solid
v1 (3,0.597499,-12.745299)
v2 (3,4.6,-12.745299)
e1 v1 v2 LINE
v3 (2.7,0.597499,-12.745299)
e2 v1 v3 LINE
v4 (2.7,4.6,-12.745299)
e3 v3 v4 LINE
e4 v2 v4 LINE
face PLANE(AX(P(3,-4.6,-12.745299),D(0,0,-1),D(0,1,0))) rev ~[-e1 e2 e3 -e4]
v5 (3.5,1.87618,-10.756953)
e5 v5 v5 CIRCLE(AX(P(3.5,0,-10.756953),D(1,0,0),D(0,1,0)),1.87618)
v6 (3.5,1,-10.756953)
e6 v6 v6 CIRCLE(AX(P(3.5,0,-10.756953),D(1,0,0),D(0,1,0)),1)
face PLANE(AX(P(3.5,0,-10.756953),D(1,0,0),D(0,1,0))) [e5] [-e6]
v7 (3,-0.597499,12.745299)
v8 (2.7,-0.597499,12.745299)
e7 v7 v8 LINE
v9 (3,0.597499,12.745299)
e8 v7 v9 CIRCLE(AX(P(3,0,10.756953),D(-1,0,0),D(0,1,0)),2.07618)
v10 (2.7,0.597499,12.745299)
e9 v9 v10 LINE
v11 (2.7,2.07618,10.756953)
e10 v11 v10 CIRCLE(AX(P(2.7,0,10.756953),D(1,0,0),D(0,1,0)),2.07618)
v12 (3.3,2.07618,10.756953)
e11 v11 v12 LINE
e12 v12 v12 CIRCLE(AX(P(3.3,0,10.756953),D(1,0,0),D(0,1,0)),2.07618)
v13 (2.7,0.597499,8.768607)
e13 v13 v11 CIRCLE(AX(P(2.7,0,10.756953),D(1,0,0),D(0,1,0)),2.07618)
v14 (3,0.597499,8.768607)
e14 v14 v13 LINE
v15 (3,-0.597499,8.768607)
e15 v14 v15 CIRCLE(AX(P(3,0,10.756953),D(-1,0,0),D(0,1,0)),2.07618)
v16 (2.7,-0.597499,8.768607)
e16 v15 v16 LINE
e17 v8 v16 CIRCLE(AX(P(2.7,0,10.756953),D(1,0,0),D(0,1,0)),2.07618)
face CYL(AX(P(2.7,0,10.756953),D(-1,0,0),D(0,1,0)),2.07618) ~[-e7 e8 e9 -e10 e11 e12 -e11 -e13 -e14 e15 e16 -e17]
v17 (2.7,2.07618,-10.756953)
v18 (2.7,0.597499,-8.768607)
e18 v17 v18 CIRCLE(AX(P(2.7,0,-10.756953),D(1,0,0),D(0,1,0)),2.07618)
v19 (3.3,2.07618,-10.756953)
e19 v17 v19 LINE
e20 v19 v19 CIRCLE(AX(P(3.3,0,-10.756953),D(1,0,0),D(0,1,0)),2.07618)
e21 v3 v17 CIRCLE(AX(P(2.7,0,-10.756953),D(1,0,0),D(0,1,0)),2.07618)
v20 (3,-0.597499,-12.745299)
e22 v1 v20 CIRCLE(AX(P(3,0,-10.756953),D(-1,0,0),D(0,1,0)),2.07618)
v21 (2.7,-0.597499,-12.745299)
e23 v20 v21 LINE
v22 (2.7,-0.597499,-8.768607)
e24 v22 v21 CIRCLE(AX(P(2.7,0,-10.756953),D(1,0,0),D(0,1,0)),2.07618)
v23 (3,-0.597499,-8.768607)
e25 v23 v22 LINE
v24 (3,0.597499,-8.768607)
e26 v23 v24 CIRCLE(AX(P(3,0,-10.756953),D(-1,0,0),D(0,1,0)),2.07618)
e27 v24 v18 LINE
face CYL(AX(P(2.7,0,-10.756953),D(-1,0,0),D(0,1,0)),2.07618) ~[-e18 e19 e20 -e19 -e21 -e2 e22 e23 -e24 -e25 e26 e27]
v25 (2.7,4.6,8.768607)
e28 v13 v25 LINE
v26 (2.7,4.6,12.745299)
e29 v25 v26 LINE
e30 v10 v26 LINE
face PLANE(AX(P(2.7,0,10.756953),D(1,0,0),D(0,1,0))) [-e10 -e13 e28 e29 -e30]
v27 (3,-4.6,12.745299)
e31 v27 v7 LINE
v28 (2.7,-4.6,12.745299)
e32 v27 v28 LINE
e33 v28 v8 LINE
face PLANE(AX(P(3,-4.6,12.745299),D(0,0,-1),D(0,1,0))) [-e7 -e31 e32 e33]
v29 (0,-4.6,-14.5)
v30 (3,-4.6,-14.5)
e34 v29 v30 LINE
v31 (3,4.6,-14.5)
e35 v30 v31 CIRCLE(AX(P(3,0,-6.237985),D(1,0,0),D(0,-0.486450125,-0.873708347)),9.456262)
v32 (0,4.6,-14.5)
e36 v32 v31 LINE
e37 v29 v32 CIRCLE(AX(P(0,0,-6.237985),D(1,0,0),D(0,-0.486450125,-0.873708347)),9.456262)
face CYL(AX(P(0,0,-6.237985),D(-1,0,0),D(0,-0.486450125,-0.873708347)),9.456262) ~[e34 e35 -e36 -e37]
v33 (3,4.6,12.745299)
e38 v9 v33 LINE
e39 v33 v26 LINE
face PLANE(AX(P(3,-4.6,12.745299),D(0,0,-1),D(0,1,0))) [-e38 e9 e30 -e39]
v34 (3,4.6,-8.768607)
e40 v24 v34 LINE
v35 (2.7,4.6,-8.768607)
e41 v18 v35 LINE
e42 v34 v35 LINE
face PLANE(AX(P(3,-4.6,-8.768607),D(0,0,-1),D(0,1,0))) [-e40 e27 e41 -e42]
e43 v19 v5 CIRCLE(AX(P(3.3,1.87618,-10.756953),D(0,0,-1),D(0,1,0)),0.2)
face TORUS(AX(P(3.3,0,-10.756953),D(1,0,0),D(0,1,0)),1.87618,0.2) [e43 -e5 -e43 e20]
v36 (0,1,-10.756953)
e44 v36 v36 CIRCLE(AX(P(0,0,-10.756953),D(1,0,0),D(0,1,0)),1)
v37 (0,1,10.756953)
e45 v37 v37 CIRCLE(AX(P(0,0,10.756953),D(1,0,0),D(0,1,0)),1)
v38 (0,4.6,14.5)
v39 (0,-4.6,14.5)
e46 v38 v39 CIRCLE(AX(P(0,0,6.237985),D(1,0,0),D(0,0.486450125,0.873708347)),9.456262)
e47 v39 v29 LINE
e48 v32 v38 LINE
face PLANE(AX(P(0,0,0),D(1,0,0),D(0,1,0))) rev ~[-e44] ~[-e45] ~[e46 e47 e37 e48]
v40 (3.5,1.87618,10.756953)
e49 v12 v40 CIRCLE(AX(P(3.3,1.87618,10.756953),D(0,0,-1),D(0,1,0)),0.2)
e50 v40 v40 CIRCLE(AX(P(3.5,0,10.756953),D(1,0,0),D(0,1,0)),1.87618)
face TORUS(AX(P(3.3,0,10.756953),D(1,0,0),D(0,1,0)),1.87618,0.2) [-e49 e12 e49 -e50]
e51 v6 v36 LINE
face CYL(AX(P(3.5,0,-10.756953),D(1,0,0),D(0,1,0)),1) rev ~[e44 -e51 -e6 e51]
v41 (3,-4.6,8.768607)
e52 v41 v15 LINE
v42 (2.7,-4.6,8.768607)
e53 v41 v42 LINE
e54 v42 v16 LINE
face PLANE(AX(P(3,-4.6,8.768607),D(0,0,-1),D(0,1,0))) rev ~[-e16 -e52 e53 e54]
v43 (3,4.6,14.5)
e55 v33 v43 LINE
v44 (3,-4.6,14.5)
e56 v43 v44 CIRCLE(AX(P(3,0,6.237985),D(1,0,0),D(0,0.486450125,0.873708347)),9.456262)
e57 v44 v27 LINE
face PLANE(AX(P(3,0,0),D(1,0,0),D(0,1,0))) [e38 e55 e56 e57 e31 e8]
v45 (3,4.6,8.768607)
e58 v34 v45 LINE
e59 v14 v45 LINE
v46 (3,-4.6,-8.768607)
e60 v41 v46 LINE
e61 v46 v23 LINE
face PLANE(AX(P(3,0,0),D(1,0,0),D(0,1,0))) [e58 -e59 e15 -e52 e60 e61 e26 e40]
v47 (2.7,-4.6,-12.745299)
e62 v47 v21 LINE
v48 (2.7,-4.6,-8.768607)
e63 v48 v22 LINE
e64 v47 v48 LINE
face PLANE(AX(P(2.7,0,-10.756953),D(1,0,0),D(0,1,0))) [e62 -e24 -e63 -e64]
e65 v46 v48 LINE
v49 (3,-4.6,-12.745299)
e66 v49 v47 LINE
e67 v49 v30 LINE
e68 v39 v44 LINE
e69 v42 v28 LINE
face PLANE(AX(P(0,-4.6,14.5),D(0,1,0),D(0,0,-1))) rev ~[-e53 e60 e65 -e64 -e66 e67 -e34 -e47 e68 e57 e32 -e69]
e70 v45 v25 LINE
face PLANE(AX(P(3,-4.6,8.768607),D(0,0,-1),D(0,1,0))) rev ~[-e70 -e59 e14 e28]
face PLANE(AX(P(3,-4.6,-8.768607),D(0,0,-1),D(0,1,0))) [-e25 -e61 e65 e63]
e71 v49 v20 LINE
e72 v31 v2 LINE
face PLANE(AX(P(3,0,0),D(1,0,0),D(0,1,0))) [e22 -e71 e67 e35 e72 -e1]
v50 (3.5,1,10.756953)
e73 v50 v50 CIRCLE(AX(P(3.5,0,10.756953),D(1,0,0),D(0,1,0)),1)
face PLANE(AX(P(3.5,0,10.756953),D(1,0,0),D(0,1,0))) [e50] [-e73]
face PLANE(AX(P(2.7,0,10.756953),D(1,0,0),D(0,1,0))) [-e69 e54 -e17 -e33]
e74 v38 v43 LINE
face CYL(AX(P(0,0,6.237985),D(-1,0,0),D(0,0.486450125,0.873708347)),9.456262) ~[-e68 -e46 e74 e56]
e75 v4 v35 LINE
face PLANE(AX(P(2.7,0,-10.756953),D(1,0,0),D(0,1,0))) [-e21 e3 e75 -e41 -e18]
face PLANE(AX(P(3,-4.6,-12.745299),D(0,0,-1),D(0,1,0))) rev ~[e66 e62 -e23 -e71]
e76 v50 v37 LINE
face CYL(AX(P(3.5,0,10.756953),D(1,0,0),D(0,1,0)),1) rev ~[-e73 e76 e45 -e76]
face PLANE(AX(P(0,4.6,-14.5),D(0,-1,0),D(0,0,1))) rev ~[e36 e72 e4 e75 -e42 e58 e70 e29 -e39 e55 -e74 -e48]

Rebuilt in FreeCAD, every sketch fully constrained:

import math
import FreeCAD as App
import Part
import Sketcher


def edges_at(feature, points):
    """Names of the edges that pass closest to the given points."""
    edges = feature.Shape.Edges
    near = lambda p: min(range(len(edges)), key=lambda i: edges[i].distToShape(Part.Vertex(*p))[0])
    return sorted({f"Edge{near(p) + 1}" for p in points})


def add_polygon(sketch, points):
    """Adds a closed chain of lines whose ends are joined by coincident constraints."""
    first, n = sketch.GeometryCount, len(points)
    for a, b in zip(points, points[1:] + points[:1]):
        sketch.addGeometry(Part.LineSegment(App.Vector(*a, 0), App.Vector(*b, 0)), False)
    for i in range(n):
        sketch.addConstraint(Sketcher.Constraint("Coincident", first + i, 2, first + (i + 1) % n, 1))

doc = App.newDocument("Part")
body = doc.addObject("PartDesign::Body", "Body")

# Sketch on YZ plane
sketch1 = body.newObject("Sketcher::SketchObject", "Sketch")
sketch1.AttachmentSupport = (doc.getObject("YZ_Plane"), [""])
sketch1.MapMode = "FlatFace"
sketch1.addGeometry([
    Part.LineSegment(App.Vector(4.6, -14.5, 0), App.Vector(4.6, 14.5, 0)),
    Part.ArcOfCircle(Part.Circle(App.Vector(0, 6.237985, 0), App.Vector(0, 0, 1), 9.456262), math.radians(60.892476), math.radians(119.107524)),
    Part.LineSegment(App.Vector(-4.6, 14.5, 0), App.Vector(-4.6, -14.5, 0)),
    Part.ArcOfCircle(Part.Circle(App.Vector(0, -6.237985, 0), App.Vector(0, 0, 1), 9.456262), math.radians(-119.107524), math.radians(-60.892476)),
], False)
sketch1.addConstraint([
    Sketcher.Constraint("Coincident", 0, 2, 1, 1),
    Sketcher.Constraint("Coincident", 1, 2, 2, 1),
    Sketcher.Constraint("Coincident", 2, 2, 3, 1),
    Sketcher.Constraint("Coincident", 3, 2, 0, 1),
    Sketcher.Constraint("Vertical", 0),
    Sketcher.Constraint("Vertical", 2),
    Sketcher.Constraint("Equal", 1, 3),
    Sketcher.Constraint("Symmetric", 1, 3, 3, 3, -1, 1),
    Sketcher.Constraint("Symmetric", 0, 2, 1, 2, -2),
    Sketcher.Constraint("DistanceY", 0, 1, 0, 2, 29.0),
    Sketcher.Constraint("DistanceX", -1, 1, 0, 2, 4.6),
    Sketcher.Constraint("Radius", 1, 9.456262),
])
pad1 = body.newObject("PartDesign::Pad", "Pad")
pad1.Profile = sketch1
pad1.Length = 3

# Sketch on YZ plane
sketch2 = body.newObject("Sketcher::SketchObject", "Sketch001")
sketch2.AttachmentSupport = (doc.getObject("YZ_Plane"), [""])
sketch2.MapMode = "FlatFace"
sketch2.AttachmentOffset = App.Placement(App.Vector(0, 0, 3), App.Rotation())
add_polygon(sketch2, [(-4.6, 12.745299), (-4.6, 8.768607), (4.6, 8.768607), (4.6, 12.745299)])  # lines 0-3
add_polygon(sketch2, [(-4.6, -8.768607), (-4.6, -12.745299), (4.6, -12.745299), (4.6, -8.768607)])  # lines 4-7
sketch2.addConstraint([
    Sketcher.Constraint("Vertical", 0),
    Sketcher.Constraint("Horizontal", 1),
    Sketcher.Constraint("Vertical", 2),
    Sketcher.Constraint("Horizontal", 3),
    Sketcher.Constraint("Vertical", 4),
    Sketcher.Constraint("Horizontal", 5),
    Sketcher.Constraint("Vertical", 6),
    Sketcher.Constraint("Horizontal", 7),
    Sketcher.Constraint("Symmetric", 2, 2, 4, 2, -1, 1),
    Sketcher.Constraint("Symmetric", 0, 2, 6, 2, -1, 1),
    Sketcher.Constraint("Vertical", 3, 2, 4, 2),
    Sketcher.Constraint("DistanceX", 1, 1, 1, 2, 9.2),
    Sketcher.Constraint("DistanceY", 0, 2, 0, 1, 3.976691),
    Sketcher.Constraint("DistanceY", -1, 1, 2, 2, 12.745299),
])
pocket1 = body.newObject("PartDesign::Pocket", "Pocket")
pocket1.Profile = sketch2
pocket1.Length = 0.3

# Sketch on YZ plane
sketch3 = body.newObject("Sketcher::SketchObject", "Sketch002")
sketch3.AttachmentSupport = (doc.getObject("YZ_Plane"), [""])
sketch3.MapMode = "FlatFace"
sketch3.AttachmentOffset = App.Placement(App.Vector(0, 0, 2.7), App.Rotation())
sketch3.addGeometry([
    Part.Circle(App.Vector(0, 10.756953, 0), App.Vector(0, 0, 1), 2.07618),
    Part.Circle(App.Vector(0, -10.756953, 0), App.Vector(0, 0, 1), 2.07618),
], False)
sketch3.addConstraint([
    Sketcher.Constraint("Equal", 0, 1),
    Sketcher.Constraint("Symmetric", 0, 3, 1, 3, -1, 1),
    Sketcher.Constraint("PointOnObject", 0, 3, -2),
    Sketcher.Constraint("Diameter", 0, 4.15236),
    Sketcher.Constraint("DistanceY", -1, 1, 0, 3, 10.756953),
])
pad2 = body.newObject("PartDesign::Pad", "Pad001")
pad2.Profile = sketch3
pad2.Length = 0.8
doc.recompute()

fillet = body.newObject("PartDesign::Fillet", "Fillet")
fillet.Base = (pad2, edges_at(pad2, [(3.5, -2.076, 10.757), (3.5, -2.076, -10.757)]))
fillet.Radius = 0.2

# Sketch on YZ plane
sketch4 = body.newObject("Sketcher::SketchObject", "Sketch003")
sketch4.AttachmentSupport = (doc.getObject("YZ_Plane"), [""])
sketch4.MapMode = "FlatFace"
sketch4.AttachmentOffset = App.Placement(App.Vector(0, 0, 3.5), App.Rotation())
sketch4.addGeometry([
    Part.Circle(App.Vector(0, 10.756953, 0), App.Vector(0, 0, 1), 1),
    Part.Circle(App.Vector(0, -10.756953, 0), App.Vector(0, 0, 1), 1),
], False)
sketch4.addConstraint([
    Sketcher.Constraint("Equal", 0, 1),
    Sketcher.Constraint("Symmetric", 0, 3, 1, 3, -1, 1),
    Sketcher.Constraint("PointOnObject", 0, 3, -2),
    Sketcher.Constraint("Diameter", 0, 2.0),
    Sketcher.Constraint("DistanceY", -1, 1, 0, 3, 10.756953),
])
pocket2 = body.newObject("PartDesign::Pocket", "Pocket001")
pocket2.Profile = sketch4
pocket2.Length = 25

doc.recompute()
